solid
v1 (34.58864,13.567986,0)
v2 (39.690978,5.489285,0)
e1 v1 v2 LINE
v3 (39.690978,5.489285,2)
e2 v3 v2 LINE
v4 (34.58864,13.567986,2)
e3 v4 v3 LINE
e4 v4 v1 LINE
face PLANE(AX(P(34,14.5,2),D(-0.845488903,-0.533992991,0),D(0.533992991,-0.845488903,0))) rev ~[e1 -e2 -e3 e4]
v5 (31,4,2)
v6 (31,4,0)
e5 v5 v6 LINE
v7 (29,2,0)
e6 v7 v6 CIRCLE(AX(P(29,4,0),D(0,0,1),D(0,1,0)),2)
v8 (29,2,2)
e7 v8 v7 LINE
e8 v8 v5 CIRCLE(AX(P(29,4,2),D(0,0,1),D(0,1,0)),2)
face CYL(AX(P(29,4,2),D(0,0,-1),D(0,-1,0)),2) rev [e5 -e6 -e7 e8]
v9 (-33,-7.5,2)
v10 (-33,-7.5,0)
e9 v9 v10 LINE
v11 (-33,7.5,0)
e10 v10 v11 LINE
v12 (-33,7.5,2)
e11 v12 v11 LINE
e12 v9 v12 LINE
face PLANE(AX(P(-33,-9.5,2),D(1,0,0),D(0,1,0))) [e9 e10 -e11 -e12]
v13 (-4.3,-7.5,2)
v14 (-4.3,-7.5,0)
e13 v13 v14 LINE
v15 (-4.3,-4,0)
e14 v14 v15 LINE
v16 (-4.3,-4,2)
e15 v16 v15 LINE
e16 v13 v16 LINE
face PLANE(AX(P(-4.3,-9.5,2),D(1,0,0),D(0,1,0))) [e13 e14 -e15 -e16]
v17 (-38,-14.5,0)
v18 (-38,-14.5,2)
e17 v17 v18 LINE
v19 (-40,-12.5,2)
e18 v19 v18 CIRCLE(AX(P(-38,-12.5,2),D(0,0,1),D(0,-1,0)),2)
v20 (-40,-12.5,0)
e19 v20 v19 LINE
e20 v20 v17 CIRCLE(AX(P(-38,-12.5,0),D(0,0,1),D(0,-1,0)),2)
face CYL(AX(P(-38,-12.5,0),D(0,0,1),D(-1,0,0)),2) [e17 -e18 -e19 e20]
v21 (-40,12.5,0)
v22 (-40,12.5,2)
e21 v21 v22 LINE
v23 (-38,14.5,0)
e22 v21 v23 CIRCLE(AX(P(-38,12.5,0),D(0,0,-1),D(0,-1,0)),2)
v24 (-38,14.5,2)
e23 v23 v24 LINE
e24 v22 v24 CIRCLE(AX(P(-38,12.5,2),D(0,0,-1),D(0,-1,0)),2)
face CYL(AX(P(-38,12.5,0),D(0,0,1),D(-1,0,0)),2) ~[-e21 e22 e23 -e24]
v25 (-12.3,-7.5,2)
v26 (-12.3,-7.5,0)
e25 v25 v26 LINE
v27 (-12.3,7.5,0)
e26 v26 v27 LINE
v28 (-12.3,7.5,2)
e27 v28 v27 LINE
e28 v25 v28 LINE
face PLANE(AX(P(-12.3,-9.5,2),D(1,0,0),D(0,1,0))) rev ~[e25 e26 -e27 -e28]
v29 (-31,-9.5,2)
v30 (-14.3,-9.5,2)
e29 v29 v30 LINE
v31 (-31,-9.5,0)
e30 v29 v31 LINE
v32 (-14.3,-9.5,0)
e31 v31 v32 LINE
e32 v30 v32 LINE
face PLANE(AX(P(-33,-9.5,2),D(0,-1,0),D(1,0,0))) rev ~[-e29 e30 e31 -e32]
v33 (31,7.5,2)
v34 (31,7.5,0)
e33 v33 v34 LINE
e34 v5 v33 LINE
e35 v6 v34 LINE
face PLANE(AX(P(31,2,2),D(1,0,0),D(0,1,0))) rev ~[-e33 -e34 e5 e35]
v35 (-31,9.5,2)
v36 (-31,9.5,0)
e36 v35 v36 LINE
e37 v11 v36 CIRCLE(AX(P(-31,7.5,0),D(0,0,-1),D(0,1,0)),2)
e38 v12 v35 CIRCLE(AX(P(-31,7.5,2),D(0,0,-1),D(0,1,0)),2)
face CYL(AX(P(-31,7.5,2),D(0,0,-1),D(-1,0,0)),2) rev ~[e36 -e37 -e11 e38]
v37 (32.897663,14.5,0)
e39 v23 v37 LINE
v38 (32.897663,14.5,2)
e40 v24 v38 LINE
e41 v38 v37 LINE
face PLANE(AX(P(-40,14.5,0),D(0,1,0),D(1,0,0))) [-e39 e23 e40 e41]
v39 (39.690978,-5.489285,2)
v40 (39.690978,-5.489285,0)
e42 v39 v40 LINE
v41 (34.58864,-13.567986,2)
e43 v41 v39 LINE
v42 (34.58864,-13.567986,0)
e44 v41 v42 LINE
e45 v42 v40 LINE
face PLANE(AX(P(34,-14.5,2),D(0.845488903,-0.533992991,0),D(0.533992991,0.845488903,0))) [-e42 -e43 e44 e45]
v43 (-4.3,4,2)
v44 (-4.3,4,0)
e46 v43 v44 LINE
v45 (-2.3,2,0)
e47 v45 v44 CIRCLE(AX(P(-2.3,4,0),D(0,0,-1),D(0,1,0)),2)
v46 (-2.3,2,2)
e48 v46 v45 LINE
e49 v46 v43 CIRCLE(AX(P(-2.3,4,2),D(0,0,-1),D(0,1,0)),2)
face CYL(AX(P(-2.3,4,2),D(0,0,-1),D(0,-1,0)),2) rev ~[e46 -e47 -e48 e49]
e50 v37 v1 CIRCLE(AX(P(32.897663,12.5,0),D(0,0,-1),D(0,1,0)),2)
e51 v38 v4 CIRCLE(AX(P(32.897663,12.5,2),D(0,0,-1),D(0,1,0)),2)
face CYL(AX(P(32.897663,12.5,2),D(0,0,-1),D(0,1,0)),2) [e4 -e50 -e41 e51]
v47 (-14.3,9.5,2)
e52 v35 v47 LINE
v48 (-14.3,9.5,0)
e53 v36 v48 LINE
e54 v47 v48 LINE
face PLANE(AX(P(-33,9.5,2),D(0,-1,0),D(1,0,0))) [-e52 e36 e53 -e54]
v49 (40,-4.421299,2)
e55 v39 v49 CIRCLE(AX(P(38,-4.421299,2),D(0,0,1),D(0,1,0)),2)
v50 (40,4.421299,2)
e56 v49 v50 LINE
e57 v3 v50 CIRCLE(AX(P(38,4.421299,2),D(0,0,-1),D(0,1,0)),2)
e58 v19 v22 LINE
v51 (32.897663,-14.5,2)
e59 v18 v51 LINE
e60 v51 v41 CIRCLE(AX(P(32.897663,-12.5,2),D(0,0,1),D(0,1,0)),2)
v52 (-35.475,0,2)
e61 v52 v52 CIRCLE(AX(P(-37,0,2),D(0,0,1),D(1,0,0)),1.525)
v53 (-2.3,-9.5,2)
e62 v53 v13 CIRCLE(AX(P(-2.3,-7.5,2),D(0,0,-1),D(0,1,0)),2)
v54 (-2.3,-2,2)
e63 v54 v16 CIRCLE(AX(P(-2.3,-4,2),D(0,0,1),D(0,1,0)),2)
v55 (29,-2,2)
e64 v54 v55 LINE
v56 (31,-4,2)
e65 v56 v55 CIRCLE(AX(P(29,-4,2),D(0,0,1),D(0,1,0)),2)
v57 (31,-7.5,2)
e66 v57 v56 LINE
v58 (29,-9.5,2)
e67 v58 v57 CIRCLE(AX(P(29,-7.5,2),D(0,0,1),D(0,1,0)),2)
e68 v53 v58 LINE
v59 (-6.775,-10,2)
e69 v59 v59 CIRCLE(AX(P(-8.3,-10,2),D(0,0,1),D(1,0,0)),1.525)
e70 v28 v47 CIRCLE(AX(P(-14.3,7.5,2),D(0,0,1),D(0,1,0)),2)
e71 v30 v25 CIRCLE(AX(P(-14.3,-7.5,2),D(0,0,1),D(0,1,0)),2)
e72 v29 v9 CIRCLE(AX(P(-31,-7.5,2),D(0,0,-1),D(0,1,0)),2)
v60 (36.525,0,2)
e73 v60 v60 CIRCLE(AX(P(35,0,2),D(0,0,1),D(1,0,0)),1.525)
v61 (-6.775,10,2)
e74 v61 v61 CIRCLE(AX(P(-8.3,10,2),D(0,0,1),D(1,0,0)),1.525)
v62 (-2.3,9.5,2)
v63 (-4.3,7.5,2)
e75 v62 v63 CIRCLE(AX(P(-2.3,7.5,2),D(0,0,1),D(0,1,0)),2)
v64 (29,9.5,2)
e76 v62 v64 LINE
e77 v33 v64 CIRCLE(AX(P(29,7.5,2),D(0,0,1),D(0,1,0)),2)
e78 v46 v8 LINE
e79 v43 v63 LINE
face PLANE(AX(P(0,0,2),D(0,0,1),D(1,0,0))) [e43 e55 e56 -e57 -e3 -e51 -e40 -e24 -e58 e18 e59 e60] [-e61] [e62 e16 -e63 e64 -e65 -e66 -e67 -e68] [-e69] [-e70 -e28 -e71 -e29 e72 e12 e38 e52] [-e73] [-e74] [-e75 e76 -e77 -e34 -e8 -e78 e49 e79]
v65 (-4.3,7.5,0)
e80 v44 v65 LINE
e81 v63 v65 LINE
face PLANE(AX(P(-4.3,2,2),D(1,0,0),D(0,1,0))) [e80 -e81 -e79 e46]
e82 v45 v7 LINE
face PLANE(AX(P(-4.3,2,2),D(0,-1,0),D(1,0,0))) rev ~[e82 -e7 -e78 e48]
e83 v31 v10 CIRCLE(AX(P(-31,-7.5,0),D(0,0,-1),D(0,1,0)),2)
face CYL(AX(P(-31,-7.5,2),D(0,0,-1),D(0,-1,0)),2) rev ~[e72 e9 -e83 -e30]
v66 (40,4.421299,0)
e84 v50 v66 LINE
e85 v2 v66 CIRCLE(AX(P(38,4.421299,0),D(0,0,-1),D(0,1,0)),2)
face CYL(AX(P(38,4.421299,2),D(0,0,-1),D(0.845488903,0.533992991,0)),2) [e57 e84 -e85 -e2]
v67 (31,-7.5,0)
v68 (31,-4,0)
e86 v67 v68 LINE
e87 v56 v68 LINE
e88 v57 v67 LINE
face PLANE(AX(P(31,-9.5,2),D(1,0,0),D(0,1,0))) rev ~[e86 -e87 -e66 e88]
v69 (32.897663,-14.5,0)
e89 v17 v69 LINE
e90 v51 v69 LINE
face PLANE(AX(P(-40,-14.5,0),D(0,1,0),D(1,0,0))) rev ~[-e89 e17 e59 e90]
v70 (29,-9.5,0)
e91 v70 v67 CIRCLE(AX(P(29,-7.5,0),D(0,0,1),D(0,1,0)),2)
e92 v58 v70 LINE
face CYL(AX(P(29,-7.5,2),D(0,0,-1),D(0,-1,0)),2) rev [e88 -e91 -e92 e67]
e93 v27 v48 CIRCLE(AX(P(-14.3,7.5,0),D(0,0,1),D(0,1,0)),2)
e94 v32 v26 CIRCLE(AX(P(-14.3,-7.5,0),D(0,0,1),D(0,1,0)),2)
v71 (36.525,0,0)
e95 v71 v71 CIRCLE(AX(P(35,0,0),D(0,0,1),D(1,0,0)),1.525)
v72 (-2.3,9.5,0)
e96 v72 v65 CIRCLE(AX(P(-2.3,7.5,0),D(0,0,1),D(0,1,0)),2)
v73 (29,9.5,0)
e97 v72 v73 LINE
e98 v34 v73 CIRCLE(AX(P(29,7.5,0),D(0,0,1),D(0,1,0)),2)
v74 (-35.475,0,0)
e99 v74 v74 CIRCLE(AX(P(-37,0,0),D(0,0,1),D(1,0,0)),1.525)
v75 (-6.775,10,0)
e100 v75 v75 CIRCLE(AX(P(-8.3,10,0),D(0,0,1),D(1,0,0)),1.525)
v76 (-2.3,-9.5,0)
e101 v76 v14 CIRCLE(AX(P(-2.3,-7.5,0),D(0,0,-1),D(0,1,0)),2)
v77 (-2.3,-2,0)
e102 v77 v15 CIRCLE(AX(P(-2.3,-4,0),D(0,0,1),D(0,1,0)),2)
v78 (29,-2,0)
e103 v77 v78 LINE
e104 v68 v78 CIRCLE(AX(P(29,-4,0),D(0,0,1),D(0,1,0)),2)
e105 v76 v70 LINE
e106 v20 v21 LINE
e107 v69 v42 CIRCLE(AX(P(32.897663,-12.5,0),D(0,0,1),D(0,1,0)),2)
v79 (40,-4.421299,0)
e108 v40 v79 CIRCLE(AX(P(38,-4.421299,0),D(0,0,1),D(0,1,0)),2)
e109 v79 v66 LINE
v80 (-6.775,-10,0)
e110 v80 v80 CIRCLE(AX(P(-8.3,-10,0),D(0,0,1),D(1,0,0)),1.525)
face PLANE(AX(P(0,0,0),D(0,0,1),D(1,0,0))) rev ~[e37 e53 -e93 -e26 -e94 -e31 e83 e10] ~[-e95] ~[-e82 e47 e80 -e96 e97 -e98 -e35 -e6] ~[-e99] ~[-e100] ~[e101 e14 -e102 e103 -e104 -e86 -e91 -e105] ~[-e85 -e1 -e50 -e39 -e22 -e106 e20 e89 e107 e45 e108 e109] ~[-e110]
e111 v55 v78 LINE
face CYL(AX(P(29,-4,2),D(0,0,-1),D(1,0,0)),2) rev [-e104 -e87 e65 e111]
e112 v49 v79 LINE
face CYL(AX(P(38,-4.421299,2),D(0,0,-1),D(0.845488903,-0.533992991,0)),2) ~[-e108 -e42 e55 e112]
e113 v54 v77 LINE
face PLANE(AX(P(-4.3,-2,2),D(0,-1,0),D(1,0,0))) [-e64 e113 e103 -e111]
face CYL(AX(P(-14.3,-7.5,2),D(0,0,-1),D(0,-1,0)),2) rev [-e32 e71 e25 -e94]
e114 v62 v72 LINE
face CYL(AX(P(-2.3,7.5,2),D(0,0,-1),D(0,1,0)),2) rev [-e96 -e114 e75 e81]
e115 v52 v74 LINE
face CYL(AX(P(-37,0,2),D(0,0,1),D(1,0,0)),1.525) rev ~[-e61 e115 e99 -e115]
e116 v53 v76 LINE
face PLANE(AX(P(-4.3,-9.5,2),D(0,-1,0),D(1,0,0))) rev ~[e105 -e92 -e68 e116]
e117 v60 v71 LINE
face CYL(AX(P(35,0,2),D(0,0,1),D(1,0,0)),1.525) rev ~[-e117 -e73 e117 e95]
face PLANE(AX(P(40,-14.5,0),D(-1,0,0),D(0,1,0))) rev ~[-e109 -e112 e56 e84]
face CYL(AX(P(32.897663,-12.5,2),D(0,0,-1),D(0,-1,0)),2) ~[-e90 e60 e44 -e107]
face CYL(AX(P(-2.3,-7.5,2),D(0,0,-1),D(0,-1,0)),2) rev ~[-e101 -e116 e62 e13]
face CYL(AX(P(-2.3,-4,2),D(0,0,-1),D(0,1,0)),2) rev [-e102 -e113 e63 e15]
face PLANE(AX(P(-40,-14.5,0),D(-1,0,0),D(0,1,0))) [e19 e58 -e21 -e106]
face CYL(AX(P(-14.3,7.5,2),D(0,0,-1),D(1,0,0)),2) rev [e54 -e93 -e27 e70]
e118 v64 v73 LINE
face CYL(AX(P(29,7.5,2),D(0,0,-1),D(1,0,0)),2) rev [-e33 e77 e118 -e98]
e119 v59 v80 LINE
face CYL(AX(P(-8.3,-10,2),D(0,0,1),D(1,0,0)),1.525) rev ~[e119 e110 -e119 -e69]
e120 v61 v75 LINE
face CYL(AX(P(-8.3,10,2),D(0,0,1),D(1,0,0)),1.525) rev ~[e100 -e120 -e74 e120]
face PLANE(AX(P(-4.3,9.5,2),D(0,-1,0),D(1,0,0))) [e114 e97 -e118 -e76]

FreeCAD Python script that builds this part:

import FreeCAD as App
import Part
import Sketcher

V = App.Vector
Q = App.Units.Quantity


def edges_at(feature, points):
    """Names of the edges that pass closest to the given points."""
    edges = feature.Shape.Edges
    near = lambda p: min(range(len(edges)), key=lambda i: edges[i].distToShape(Part.Vertex(*p))[0])
    return sorted({f"Edge{near(p) + 1}" for p in points})

doc = App.newDocument("Part")
body = doc.addObject("PartDesign::Body", "Body")

# Sketch on XY plane
sketch1 = doc.addObject("Sketcher::SketchObject", "Sketch")
body.addObject(sketch1)
sketch1.AttachmentSupport = (doc.XY_Plane, [""])
sketch1.MapMode = "FlatFace"
sketch1.addGeometry([
    Part.LineSegment(V(-40, 14.5, 0), V(-40, -14.5, 0)),
    Part.LineSegment(V(-40, -14.5, 0), V(40, -14.5, 0)),
    Part.LineSegment(V(40, -14.5, 0), V(40, 14.5, 0)),
    Part.LineSegment(V(40, 14.5, 0), V(-40, 14.5, 0)),
], False)
sketch1.addConstraint([
    Sketcher.Constraint("Coincident", 0, 2, 1, 1),
    Sketcher.Constraint("Coincident", 1, 2, 2, 1),
    Sketcher.Constraint("Coincident", 2, 2, 3, 1),
    Sketcher.Constraint("Coincident", 3, 2, 0, 1),
    Sketcher.Constraint("Vertical", 0),
    Sketcher.Constraint("Horizontal", 1),
    Sketcher.Constraint("Vertical", 2),
    Sketcher.Constraint("Horizontal", 3),
    Sketcher.Constraint("Symmetric", 0, 2, 2, 2, -1, 1),
    Sketcher.Constraint("DistanceX", 1, 1, 1, 2, Q("80 mm")),
    Sketcher.Constraint("DistanceY", 0, 2, 0, 1, Q("29 mm")),
])
pad1 = doc.addObject("PartDesign::Pad", "Pad")
body.addObject(pad1)
pad1.Profile = sketch1
pad1.Length = 2

# Sketch on XY plane
sketch2 = doc.addObject("Sketcher::SketchObject", "Sketch001")
body.addObject(sketch2)
sketch2.AttachmentSupport = (doc.XY_Plane, [""])
sketch2.MapMode = "FlatFace"
sketch2.AttachmentOffset = App.Placement(V(0, 0, 2), App.Rotation())
sketch2.addGeometry([
    Part.LineSegment(V(34, 14.5, 0), V(40, 5, 0)),  # 0
    Part.LineSegment(V(40, 5, 0), V(40, 14.5, 0)),  # 1
    Part.LineSegment(V(40, 14.5, 0), V(34, 14.5, 0)),  # 2
    Part.LineSegment(V(34, -14.5, 0), V(40, -14.5, 0)),  # 3
    Part.LineSegment(V(40, -14.5, 0), V(40, -5, 0)),  # 4
    Part.LineSegment(V(40, -5, 0), V(34, -14.5, 0)),  # 5
], False)
sketch2.addConstraint([
    Sketcher.Constraint("Coincident", 0, 2, 1, 1),
    Sketcher.Constraint("Coincident", 1, 2, 2, 1),
    Sketcher.Constraint("Coincident", 2, 2, 0, 1),
    Sketcher.Constraint("Coincident", 3, 2, 4, 1),
    Sketcher.Constraint("Coincident", 4, 2, 5, 1),
    Sketcher.Constraint("Coincident", 5, 2, 3, 1),
    Sketcher.Constraint("Vertical", 1),
    Sketcher.Constraint("Horizontal", 2),
    Sketcher.Constraint("Horizontal", 3),
    Sketcher.Constraint("Vertical", 4),
    Sketcher.Constraint("Symmetric", 1, 2, 3, 2, -1),
    Sketcher.Constraint("Vertical", 2, 2, 5, 2),
    Sketcher.Constraint("Equal", 1, 4),
    Sketcher.Constraint("DistanceX", 2, 2, 2, 1, Q("6 mm")),
    Sketcher.Constraint("DistanceY", 1, 1, 1, 2, Q("9.5 mm")),
    Sketcher.Constraint("DistanceX", -1, 1, 0, 2, Q("40 mm")),
    Sketcher.Constraint("DistanceY", -1, 1, 0, 2, Q("5 mm")),
])
pocket1 = doc.addObject("PartDesign::Pocket", "Pocket")
body.addObject(pocket1)
pocket1.Profile = sketch2
pocket1.Length = 2

# Sketch on XY plane
sketch3 = doc.addObject("Sketcher::SketchObject", "Sketch002")
body.addObject(sketch3)
sketch3.AttachmentSupport = (doc.XY_Plane, [""])
sketch3.MapMode = "FlatFace"
sketch3.AttachmentOffset = App.Placement(V(0, 0, 2), App.Rotation())
sketch3.addGeometry([
    Part.Circle(V(-8.3, 10, 0), V(0, 0, 1), 1.525),
    Part.Circle(V(-37, 0, 0), V(0, 0, 1), 1.525),
    Part.Circle(V(-8.3, -10, 0), V(0, 0, 1), 1.525),
], False)
sketch3.addConstraint([
    Sketcher.Constraint("Equal", 0, 1),
    Sketcher.Constraint("Equal", 1, 2),
    Sketcher.Constraint("Symmetric", 0, 3, 2, 3, -1),
    Sketcher.Constraint("PointOnObject", 1, 3, -1),
    Sketcher.Constraint("Diameter", 0, Q("3.05 mm")),
    Sketcher.Constraint("DistanceY", -1, 1, 0, 3, Q("10 mm")),
    Sketcher.Constraint("DistanceX", 1, 3, -1, 1, Q("37 mm")),
    Sketcher.Constraint("DistanceX", 0, 3, -1, 1, Q("8.3 mm")),
])
pocket2 = doc.addObject("PartDesign::Pocket", "Pocket001")
body.addObject(pocket2)
pocket2.Profile = sketch3
pocket2.Length = 10

# Sketch on XY plane
sketch4 = doc.addObject("Sketcher::SketchObject", "Sketch003")
body.addObject(sketch4)
sketch4.AttachmentSupport = (doc.XY_Plane, [""])
sketch4.MapMode = "FlatFace"
sketch4.AttachmentOffset = App.Placement(V(0, 0, 2), App.Rotation())
sketch4.addGeometry(Part.Circle(V(35, 0, 0), V(0, 0, 1), 1.525), False)
sketch4.addConstraint([
    Sketcher.Constraint("PointOnObject", 0, 3, -1),
    Sketcher.Constraint("Diameter", 0, Q("3.05 mm")),
    Sketcher.Constraint("DistanceX", -1, 1, 0, 3, Q("35 mm")),
])
pocket3 = doc.addObject("PartDesign::Pocket", "Pocket002")
body.addObject(pocket3)
pocket3.Profile = sketch4
pocket3.Length = 10
doc.recompute()

fillet = doc.addObject("PartDesign::Fillet", "Fillet")
body.addObject(fillet)
fillet.Base = (pocket3, edges_at(pocket3, [
    (34, 14.5, 1),
    (40, 5, 1),
    (40, -5, 1),
    (34, -14.5, 1),
    (-40, -14.5, 1),
    (-40, 14.5, 1),
]))
fillet.Radius = 2

# Sketch on XY plane
sketch5 = doc.addObject("Sketcher::SketchObject", "Sketch004")
body.addObject(sketch5)
sketch5.AttachmentSupport = (doc.XY_Plane, [""])
sketch5.MapMode = "FlatFace"
sketch5.AttachmentOffset = App.Placement(V(0, 0, 2), App.Rotation())
sketch5.addGeometry([
    Part.LineSegment(V(-33, 9.5, 0), V(-33, -9.5, 0)),
    Part.LineSegment(V(-33, -9.5, 0), V(-12.3, -9.5, 0)),
    Part.LineSegment(V(-12.3, -9.5, 0), V(-12.3, 9.5, 0)),
    Part.LineSegment(V(-12.3, 9.5, 0), V(-33, 9.5, 0)),
], False)
sketch5.addConstraint([
    Sketcher.Constraint("Coincident", 0, 2, 1, 1),
    Sketcher.Constraint("Coincident", 1, 2, 2, 1),
    Sketcher.Constraint("Coincident", 2, 2, 3, 1),
    Sketcher.Constraint("Coincident", 3, 2, 0, 1),
    Sketcher.Constraint("Vertical", 0),
    Sketcher.Constraint("Horizontal", 1),
    Sketcher.Constraint("Vertical", 2),
    Sketcher.Constraint("Horizontal", 3),
    Sketcher.Constraint("DistanceY", 0, 2, 0, 1, Q("19 mm")),
    Sketcher.Constraint("DistanceX", 1, 1, 1, 2, Q("20.7 mm")),
    Sketcher.Constraint("DistanceX", 0, 2, -1, 1, Q("33 mm")),
    Sketcher.Constraint("DistanceY", 0, 2, -1, 1, Q("9.5 mm")),
])
pocket4 = doc.addObject("PartDesign::Pocket", "Pocket003")
body.addObject(pocket4)
pocket4.Profile = sketch5
pocket4.Length = 10

# Sketch on XY plane
sketch6 = doc.addObject("Sketcher::SketchObject", "Sketch005")
body.addObject(sketch6)
sketch6.AttachmentSupport = (doc.XY_Plane, [""])
sketch6.MapMode = "FlatFace"
sketch6.AttachmentOffset = App.Placement(V(0, 0, 2), App.Rotation())
sketch6.addGeometry([
    Part.LineSegment(V(-4.3, 9.5, 0), V(-4.3, 2, 0)),  # 0
    Part.LineSegment(V(-4.3, 2, 0), V(31, 2, 0)),  # 1
    Part.LineSegment(V(31, 2, 0), V(31, 9.5, 0)),  # 2
    Part.LineSegment(V(31, 9.5, 0), V(-4.3, 9.5, 0)),  # 3
    Part.LineSegment(V(-4.3, -2, 0), V(-4.3, -9.5, 0)),  # 4
    Part.LineSegment(V(-4.3, -9.5, 0), V(31, -9.5, 0)),  # 5
    Part.LineSegment(V(31, -9.5, 0), V(31, -2, 0)),  # 6
    Part.LineSegment(V(31, -2, 0), V(-4.3, -2, 0)),  # 7
], False)
sketch6.addConstraint([
    Sketcher.Constraint("Coincident", 0, 2, 1, 1),
    Sketcher.Constraint("Coincident", 1, 2, 2, 1),
    Sketcher.Constraint("Coincident", 2, 2, 3, 1),
    Sketcher.Constraint("Coincident", 3, 2, 0, 1),
    Sketcher.Constraint("Coincident", 4, 2, 5, 1),
    Sketcher.Constraint("Coincident", 5, 2, 6, 1),
    Sketcher.Constraint("Coincident", 6, 2, 7, 1),
    Sketcher.Constraint("Coincident", 7, 2, 4, 1),
    Sketcher.Constraint("Vertical", 0),
    Sketcher.Constraint("Horizontal", 1),
    Sketcher.Constraint("Vertical", 2),
    Sketcher.Constraint("Horizontal", 3),
    Sketcher.Constraint("Vertical", 4),
    Sketcher.Constraint("Horizontal", 5),
    Sketcher.Constraint("Vertical", 6),
    Sketcher.Constraint("Horizontal", 7),
    Sketcher.Constraint("Symmetric", 3, 2, 4, 2, -1),
    Sketcher.Constraint("Symmetric", 1, 2, 6, 2, -1),
    Sketcher.Constraint("DistanceX", 1, 1, 1, 2, Q("35.3 mm")),
    Sketcher.Constraint("DistanceY", 0, 2, 0, 1, Q("7.5 mm")),
    Sketcher.Constraint("DistanceY", -1, 1, 0, 2, Q("2 mm")),
    Sketcher.Constraint("DistanceX", -1, 1, 1, 2, Q("31 mm")),
])
pocket5 = doc.addObject("PartDesign::Pocket", "Pocket004")
body.addObject(pocket5)
pocket5.Profile = sketch6
pocket5.Length = 10
doc.recompute()

fillet2 = doc.addObject("PartDesign::Fillet", "Fillet001")
body.addObject(fillet2)
fillet2.Base = (pocket5, edges_at(pocket5, [
    (-33, 9.5, 1),
    (-12.3, 9.5, 1),
    (-12.3, -9.5, 1),
    (-33, -9.5, 1),
    (-4.3, 2, 1),
    (-4.3, 9.5, 1),
    (31, 9.5, 1),
    (31, 2, 1),
    (-4.3, -2, 1),
    (31, -2, 1),
    (31, -9.5, 1),
    (-4.3, -9.5, 1),
]))
fillet2.Radius = 2

doc.recompute()
